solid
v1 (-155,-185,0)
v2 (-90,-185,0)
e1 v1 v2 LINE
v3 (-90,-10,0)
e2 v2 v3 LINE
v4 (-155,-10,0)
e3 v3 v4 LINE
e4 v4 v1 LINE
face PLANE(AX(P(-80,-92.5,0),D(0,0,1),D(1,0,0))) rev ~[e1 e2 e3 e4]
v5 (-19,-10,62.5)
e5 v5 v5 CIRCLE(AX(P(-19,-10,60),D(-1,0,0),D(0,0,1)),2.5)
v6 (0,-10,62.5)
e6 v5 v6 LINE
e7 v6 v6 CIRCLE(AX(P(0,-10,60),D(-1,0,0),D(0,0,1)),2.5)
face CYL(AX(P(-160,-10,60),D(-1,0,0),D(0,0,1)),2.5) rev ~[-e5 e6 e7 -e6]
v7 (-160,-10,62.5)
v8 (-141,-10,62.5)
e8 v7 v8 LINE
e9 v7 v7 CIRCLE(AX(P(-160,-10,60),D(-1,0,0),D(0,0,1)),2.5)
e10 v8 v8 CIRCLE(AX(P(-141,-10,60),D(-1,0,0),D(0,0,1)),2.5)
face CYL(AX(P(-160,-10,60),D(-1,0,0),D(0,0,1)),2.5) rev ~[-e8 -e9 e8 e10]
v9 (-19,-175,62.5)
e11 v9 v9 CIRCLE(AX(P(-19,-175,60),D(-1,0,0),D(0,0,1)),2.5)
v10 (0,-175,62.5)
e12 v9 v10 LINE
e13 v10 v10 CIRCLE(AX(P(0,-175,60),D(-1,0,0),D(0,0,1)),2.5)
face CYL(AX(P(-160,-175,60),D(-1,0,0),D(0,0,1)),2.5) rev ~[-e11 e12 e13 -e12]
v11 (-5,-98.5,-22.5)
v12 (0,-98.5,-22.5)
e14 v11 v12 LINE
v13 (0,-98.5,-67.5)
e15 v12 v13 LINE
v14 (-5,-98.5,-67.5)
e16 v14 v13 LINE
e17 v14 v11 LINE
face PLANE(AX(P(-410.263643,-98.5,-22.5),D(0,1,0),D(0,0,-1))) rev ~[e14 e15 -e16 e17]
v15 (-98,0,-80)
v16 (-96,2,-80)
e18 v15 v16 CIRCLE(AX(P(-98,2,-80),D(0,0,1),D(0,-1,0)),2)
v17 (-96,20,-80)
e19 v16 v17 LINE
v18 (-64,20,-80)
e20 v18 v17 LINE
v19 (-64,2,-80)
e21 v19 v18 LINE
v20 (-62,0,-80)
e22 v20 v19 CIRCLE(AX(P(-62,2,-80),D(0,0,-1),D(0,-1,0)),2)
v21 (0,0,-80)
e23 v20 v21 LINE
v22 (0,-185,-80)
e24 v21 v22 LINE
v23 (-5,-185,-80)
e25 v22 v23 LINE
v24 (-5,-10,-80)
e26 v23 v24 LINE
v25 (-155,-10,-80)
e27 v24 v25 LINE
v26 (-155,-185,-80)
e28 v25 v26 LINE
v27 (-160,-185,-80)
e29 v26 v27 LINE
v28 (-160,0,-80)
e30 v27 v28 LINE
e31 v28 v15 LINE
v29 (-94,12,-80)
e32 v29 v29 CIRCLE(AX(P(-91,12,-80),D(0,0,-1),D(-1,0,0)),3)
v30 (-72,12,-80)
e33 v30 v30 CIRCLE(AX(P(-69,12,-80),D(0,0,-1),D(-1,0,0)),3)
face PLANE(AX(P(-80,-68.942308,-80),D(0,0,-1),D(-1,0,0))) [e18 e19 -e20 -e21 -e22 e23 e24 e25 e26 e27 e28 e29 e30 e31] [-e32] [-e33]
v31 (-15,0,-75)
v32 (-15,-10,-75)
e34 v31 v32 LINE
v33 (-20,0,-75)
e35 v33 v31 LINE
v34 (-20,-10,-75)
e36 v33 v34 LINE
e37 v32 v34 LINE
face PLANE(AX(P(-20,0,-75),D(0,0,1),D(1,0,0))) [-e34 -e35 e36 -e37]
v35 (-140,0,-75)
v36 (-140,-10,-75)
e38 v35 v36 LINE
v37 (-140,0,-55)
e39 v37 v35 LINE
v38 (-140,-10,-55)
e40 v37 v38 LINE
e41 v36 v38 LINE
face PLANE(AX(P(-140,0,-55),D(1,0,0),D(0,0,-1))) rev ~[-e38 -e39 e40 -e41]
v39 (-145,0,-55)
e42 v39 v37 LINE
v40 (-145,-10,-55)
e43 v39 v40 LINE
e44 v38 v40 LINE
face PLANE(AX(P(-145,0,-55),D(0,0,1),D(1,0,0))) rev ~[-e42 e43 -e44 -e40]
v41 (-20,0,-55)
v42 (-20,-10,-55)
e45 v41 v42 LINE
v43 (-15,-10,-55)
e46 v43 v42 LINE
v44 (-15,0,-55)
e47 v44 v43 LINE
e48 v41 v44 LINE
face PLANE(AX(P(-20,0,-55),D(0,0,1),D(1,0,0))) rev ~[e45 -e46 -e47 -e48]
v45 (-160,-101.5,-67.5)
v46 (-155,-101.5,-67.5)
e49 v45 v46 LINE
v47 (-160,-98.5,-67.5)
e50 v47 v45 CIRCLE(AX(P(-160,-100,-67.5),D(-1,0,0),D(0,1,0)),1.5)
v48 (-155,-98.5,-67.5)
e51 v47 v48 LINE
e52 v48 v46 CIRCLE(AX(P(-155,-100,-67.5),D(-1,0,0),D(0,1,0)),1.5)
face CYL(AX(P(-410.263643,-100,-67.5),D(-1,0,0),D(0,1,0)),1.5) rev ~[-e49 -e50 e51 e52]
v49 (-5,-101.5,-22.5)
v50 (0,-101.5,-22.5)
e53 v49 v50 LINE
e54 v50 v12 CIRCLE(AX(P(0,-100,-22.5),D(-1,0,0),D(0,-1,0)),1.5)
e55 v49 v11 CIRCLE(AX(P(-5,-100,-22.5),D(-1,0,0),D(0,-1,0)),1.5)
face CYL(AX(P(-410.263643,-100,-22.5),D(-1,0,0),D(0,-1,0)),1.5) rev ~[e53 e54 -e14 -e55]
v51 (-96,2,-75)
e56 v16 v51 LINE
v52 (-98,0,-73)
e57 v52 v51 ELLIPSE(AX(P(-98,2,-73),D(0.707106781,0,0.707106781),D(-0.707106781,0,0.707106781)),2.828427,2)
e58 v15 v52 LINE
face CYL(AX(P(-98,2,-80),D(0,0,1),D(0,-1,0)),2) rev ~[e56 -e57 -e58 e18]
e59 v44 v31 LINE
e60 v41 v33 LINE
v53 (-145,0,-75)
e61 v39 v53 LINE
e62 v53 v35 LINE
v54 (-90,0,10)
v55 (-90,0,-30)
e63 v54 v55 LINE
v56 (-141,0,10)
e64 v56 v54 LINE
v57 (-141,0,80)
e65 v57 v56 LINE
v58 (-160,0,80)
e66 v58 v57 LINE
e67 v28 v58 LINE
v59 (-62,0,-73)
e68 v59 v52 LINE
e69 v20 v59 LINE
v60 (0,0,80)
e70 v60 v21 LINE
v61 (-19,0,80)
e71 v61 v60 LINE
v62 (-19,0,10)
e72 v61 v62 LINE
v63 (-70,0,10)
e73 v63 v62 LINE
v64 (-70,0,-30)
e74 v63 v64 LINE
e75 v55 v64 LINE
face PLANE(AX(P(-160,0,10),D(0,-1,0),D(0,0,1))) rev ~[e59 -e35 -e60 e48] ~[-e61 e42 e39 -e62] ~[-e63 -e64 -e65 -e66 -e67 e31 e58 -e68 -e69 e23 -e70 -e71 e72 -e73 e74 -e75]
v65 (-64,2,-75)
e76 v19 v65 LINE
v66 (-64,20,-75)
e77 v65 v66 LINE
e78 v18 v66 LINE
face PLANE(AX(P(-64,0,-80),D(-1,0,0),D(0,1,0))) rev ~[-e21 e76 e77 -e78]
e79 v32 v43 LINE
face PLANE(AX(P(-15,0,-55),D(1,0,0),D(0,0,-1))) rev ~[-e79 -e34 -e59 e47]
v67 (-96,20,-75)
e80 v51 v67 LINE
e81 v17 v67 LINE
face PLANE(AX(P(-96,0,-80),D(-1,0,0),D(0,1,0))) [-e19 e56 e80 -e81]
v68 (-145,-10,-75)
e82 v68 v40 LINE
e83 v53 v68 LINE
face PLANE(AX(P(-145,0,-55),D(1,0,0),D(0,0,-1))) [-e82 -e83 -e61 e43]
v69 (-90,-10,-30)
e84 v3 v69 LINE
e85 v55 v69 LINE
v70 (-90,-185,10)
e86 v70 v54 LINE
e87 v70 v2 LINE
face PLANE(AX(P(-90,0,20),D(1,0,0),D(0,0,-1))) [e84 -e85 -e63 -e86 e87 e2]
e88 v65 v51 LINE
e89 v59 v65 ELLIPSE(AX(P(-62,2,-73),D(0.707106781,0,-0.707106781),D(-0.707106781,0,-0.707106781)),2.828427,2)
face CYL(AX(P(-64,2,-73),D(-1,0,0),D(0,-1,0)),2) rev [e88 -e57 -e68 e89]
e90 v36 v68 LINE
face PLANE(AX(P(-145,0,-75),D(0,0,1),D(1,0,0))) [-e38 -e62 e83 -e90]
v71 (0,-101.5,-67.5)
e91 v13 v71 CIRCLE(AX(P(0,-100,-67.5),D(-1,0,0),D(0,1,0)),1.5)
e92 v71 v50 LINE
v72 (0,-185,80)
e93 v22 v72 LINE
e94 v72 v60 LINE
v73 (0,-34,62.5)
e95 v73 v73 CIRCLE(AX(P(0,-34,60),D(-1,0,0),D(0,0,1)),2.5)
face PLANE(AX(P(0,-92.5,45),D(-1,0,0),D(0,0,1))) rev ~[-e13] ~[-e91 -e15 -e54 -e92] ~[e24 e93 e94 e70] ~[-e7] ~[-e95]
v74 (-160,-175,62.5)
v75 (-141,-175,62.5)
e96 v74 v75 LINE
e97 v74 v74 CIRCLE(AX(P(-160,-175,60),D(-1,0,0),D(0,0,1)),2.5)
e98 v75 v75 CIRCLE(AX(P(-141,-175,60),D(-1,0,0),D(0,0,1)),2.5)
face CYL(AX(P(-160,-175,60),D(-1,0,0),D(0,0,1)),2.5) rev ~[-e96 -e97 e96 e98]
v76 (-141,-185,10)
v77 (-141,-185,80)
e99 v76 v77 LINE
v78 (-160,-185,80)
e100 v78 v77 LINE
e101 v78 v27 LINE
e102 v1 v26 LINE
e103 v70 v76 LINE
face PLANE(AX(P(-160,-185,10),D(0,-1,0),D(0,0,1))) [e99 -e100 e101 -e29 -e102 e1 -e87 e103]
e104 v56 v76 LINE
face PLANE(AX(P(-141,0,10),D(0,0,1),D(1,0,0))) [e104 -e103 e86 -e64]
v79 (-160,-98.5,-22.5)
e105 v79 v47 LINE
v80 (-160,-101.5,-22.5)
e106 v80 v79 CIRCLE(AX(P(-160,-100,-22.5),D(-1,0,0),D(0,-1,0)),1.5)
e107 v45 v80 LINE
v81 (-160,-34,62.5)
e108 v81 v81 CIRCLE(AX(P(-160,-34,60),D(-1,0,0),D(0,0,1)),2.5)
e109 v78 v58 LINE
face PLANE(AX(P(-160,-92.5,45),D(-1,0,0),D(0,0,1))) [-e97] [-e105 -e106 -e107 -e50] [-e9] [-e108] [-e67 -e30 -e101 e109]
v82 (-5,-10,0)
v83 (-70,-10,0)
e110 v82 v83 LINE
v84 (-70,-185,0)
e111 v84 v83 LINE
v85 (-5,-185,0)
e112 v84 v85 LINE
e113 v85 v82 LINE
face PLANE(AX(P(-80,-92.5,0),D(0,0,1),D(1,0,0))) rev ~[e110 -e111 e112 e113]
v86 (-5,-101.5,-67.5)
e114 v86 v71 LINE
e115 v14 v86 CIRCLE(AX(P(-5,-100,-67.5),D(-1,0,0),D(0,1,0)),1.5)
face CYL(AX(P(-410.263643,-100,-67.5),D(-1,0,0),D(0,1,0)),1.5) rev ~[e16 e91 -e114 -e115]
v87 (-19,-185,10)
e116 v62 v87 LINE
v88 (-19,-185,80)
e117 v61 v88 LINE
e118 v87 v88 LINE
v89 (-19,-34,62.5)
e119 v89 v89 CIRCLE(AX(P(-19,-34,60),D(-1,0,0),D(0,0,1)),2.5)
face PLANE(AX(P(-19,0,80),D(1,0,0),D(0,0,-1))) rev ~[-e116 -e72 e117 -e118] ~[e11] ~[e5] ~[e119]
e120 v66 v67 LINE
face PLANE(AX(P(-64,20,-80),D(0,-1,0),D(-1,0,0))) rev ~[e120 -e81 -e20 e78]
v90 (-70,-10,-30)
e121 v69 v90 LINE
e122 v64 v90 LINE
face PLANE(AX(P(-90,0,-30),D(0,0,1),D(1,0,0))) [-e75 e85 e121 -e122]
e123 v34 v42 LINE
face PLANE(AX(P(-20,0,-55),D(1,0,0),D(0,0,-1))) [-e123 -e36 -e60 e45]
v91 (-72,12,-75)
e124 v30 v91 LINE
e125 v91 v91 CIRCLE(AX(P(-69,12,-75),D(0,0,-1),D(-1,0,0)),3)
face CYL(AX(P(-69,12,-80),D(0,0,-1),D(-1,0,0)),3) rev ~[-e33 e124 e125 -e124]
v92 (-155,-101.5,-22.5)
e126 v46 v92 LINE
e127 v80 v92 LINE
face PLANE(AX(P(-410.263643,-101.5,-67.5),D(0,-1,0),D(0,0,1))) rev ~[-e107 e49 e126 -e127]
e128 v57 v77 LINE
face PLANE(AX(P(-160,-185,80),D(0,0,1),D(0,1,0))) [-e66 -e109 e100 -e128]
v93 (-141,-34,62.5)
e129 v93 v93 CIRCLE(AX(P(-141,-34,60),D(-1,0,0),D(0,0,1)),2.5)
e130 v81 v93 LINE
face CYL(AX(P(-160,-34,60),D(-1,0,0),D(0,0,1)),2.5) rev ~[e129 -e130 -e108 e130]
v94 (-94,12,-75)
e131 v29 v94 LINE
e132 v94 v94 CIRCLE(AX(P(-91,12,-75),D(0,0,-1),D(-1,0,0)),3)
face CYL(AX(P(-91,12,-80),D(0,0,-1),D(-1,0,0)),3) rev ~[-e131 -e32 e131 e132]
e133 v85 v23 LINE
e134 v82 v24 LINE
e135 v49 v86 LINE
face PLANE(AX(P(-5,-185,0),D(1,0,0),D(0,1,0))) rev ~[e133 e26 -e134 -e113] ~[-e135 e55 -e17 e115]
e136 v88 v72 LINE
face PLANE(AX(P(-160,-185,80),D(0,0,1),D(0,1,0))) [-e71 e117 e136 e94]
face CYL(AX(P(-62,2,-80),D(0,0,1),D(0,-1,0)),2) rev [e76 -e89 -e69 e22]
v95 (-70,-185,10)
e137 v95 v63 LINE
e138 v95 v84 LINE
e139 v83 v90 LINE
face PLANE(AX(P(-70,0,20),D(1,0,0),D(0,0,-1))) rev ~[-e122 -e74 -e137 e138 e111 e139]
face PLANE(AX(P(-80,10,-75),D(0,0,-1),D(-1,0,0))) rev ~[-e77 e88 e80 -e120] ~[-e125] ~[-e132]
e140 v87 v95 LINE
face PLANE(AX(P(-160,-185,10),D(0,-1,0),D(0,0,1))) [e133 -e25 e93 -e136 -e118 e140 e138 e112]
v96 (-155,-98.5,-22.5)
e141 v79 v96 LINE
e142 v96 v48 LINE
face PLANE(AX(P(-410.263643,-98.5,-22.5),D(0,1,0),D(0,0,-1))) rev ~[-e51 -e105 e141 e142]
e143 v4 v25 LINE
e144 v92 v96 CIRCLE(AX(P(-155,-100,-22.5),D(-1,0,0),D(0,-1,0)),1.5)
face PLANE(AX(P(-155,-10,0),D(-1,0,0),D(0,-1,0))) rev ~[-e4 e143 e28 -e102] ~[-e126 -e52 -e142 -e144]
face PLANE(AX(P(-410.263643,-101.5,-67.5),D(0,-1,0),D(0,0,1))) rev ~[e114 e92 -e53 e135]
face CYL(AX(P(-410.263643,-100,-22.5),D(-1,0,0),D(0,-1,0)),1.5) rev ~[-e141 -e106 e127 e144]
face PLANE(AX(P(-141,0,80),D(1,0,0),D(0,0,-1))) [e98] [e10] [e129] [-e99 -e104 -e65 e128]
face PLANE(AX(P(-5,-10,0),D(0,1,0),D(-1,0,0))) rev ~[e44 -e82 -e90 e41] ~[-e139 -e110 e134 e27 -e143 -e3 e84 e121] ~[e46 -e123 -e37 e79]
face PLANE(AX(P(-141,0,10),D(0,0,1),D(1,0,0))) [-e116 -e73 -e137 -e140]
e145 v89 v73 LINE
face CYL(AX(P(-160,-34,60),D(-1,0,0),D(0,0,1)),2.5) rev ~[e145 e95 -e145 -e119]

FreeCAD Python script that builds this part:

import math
import FreeCAD as App
import Part
import Sketcher
Q = App.Units.Quantity


def edges_at(feature, points):
    """Names of the edges that pass closest to the given points."""
    edges = feature.Shape.Edges
    near = lambda p: min(range(len(edges)), key=lambda i: edges[i].distToShape(Part.Vertex(*p))[0])
    return sorted({f"Edge{near(p) + 1}" for p in points})


def add_polygon(sketch, points):
    """Adds a closed chain of lines whose ends are joined by coincident constraints."""
    first, n = sketch.GeometryCount, len(points)
    for a, b in zip(points, points[1:] + points[:1]):
        sketch.addGeometry(Part.LineSegment(App.Vector(*a, 0), App.Vector(*b, 0)), False)
    for i in range(n):
        sketch.addConstraint(Sketcher.Constraint("Coincident", first + i, 2, first + (i + 1) % n, 1))

doc = App.newDocument("Part")
body = doc.addObject("PartDesign::Body", "Body")

# Sketch on XY plane
sketch1 = body.newObject("Sketcher::SketchObject", "Sketch")
sketch1.AttachmentSupport = (doc.getObject("XY_Plane"), [""])
sketch1.MapMode = "FlatFace"
add_polygon(sketch1, [(-160, 0), (-160, -185), (0, -185), (0, 0)])  # lines 0-3
sketch1.addConstraint([
    Sketcher.Constraint("Vertical", 0),
    Sketcher.Constraint("Horizontal", 1),
    Sketcher.Constraint("Vertical", 2),
    Sketcher.Constraint("Horizontal", 3),
    Sketcher.Constraint("Coincident", 2, 2, -1, 1),
    Sketcher.Constraint("DistanceX", 1, 1, 1, 2, Q("160 mm")),
    Sketcher.Constraint("DistanceY", 0, 2, 0, 1, Q("185 mm")),
])
pad1 = body.newObject("PartDesign::Pad", "Pad")
pad1.Profile = sketch1
pad1.Length = 10

# Sketch on XY plane
sketch2 = body.newObject("Sketcher::SketchObject", "Sketch001")
sketch2.AttachmentSupport = (doc.getObject("XY_Plane"), [""])
sketch2.MapMode = "FlatFace"
add_polygon(sketch2, [(0, 0), (0, -185), (-5, -185), (-5, -10), (-155, -10), (-155, -185), (-160, -185), (-160, 0)])  # lines 0-7
sketch2.addConstraint([
    Sketcher.Constraint("Vertical", 0),
    Sketcher.Constraint("Horizontal", 1),
    Sketcher.Constraint("Vertical", 2),
    Sketcher.Constraint("Horizontal", 3),
    Sketcher.Constraint("Vertical", 4),
    Sketcher.Constraint("Horizontal", 5),
    Sketcher.Constraint("Vertical", 6),
    Sketcher.Constraint("Horizontal", 7),
    Sketcher.Constraint("Coincident", 7, 2, -1, 1),
    Sketcher.Constraint("Horizontal", 1, 2, 4, 2),
    Sketcher.Constraint("Equal", 1, 5),
    Sketcher.Constraint("DistanceX", 1, 2, 1, 1, Q("5 mm")),
    Sketcher.Constraint("DistanceX", 3, 2, 3, 1, Q("150 mm")),
    Sketcher.Constraint("DistanceY", 0, 2, 0, 1, Q("185 mm")),
    Sketcher.Constraint("DistanceY", 2, 1, 2, 2, Q("175 mm")),
])
pad2 = body.newObject("PartDesign::Pad", "Pad001")
pad2.Profile = sketch2
pad2.Length = 80
pad2.Reversed = True

# Sketch on XZ plane
sketch3 = body.newObject("Sketcher::SketchObject", "Sketch002")
sketch3.AttachmentSupport = (doc.getObject("XZ_Plane"), [""])
sketch3.MapMode = "FlatFace"
add_polygon(sketch3, [(-90, -30), (-90, 20), (-70, 20), (-70, -30)])  # lines 0-3
sketch3.addConstraint([
    Sketcher.Constraint("Vertical", 0),
    Sketcher.Constraint("Horizontal", 1),
    Sketcher.Constraint("Vertical", 2),
    Sketcher.Constraint("Horizontal", 3),
    Sketcher.Constraint("DistanceX", 1, 1, 1, 2, Q("20 mm")),
    Sketcher.Constraint("DistanceY", 0, 1, 0, 2, Q("50 mm")),
    Sketcher.Constraint("DistanceX", 0, 2, -1, 1, Q("90 mm")),
    Sketcher.Constraint("DistanceY", -1, 1, 0, 2, Q("20 mm")),
])
pocket1 = body.newObject("PartDesign::Pocket", "Pocket")
pocket1.Profile = sketch3
pocket1.Type = "ThroughAll"
pocket1.Reversed = True

# Sketch on XY plane
sketch4 = body.newObject("Sketcher::SketchObject", "Sketch003")
sketch4.AttachmentSupport = (doc.getObject("XY_Plane"), [""])
sketch4.MapMode = "FlatFace"
sketch4.AttachmentOffset = App.Placement(App.Vector(0, 0, -80), App.Rotation())
add_polygon(sketch4, [(-64, 20), (-64, 0), (-96, 0), (-96, 20)])  # lines 0-3
sketch4.addConstraint([
    Sketcher.Constraint("Vertical", 0),
    Sketcher.Constraint("Horizontal", 1),
    Sketcher.Constraint("Vertical", 2),
    Sketcher.Constraint("Horizontal", 3),
    Sketcher.Constraint("PointOnObject", 0, 2, -1),
    Sketcher.Constraint("DistanceX", 1, 2, 1, 1, Q("32 mm")),
    Sketcher.Constraint("DistanceY", 0, 2, 0, 1, Q("20 mm")),
    Sketcher.Constraint("DistanceX", 0, 2, -1, 1, Q("64 mm")),
])
pad3 = body.newObject("PartDesign::Pad", "Pad002")
pad3.Profile = sketch4
pad3.Length = 5

# Sketch on XY plane
sketch5 = body.newObject("Sketcher::SketchObject", "Sketch004")
sketch5.AttachmentSupport = (doc.getObject("XY_Plane"), [""])
sketch5.MapMode = "FlatFace"
sketch5.AttachmentOffset = App.Placement(App.Vector(0, 0, -80), App.Rotation())
sketch5.addGeometry(Part.Circle(App.Vector(-69, 12, 0), App.Vector(0, 0, 1), 3), False)
sketch5.addConstraint([
    Sketcher.Constraint("Diameter", 0, Q("6 mm")),
    Sketcher.Constraint("DistanceX", 0, 3, -1, 1, Q("69 mm")),
    Sketcher.Constraint("DistanceY", -1, 1, 0, 3, Q("12 mm")),
])
pocket2 = body.newObject("PartDesign::Pocket", "Pocket001")
pocket2.Profile = sketch5
pocket2.Type = "UpToFirst"
pocket2.Reversed = True

# Sketch on XY plane
sketch6 = body.newObject("Sketcher::SketchObject", "Sketch005")
sketch6.AttachmentSupport = (doc.getObject("XY_Plane"), [""])
sketch6.MapMode = "FlatFace"
sketch6.AttachmentOffset = App.Placement(App.Vector(0, 0, -80), App.Rotation())
sketch6.addGeometry(Part.Circle(App.Vector(-91, 12, 0), App.Vector(0, 0, 1), 3), False)
sketch6.addConstraint([
    Sketcher.Constraint("Diameter", 0, Q("6 mm")),
    Sketcher.Constraint("DistanceX", 0, 3, -1, 1, Q("91 mm")),
    Sketcher.Constraint("DistanceY", -1, 1, 0, 3, Q("12 mm")),
])
pocket3 = body.newObject("PartDesign::Pocket", "Pocket002")
pocket3.Profile = sketch6
pocket3.Type = "UpToFirst"
pocket3.Reversed = True
doc.recompute()

fillet = body.newObject("PartDesign::Fillet", "Fillet")
fillet.Base = (pocket3, edges_at(pocket3, [(-80, 0, -75), (-96, 0, -77.5), (-64, 0, -77.5)]))
fillet.Radius = 2

# Sketch on YZ plane
sketch7 = body.newObject("Sketcher::SketchObject", "Sketch006")
sketch7.AttachmentSupport = (doc.getObject("YZ_Plane"), [""])
sketch7.MapMode = "FlatFace"
sketch7.AttachmentOffset = App.Placement(App.Vector(0, 0, -160), App.Rotation())
add_polygon(sketch7, [(0, 10), (-185, 10), (-185, 80), (0, 80)])  # lines 0-3
sketch7.addGeometry(Part.Circle(App.Vector(-175, 60, 0), App.Vector(0, 0, 1), 2.5), False)  # 4
sketch7.addGeometry(Part.Circle(App.Vector(-34, 60, 0), App.Vector(0, 0, 1), 2.5), False)  # 5
sketch7.addGeometry(Part.Circle(App.Vector(-10, 60, 0), App.Vector(0, 0, 1), 2.5), False)  # 6
sketch7.addConstraint([
    Sketcher.Constraint("Horizontal", 0),
    Sketcher.Constraint("Vertical", 1),
    Sketcher.Constraint("Horizontal", 2),
    Sketcher.Constraint("Vertical", 3),
    Sketcher.Constraint("Equal", 4, 5),
    Sketcher.Constraint("Equal", 5, 6),
    Sketcher.Constraint("PointOnObject", 2, 2, -2),
    Sketcher.Constraint("Horizontal", 4, 3, 5, 3),
    Sketcher.Constraint("Horizontal", 5, 3, 6, 3),
    Sketcher.Constraint("Diameter", 4, Q("5 mm")),
    Sketcher.Constraint("DistanceX", 0, 2, 0, 1, Q("185 mm")),
    Sketcher.Constraint("DistanceY", 1, 1, 1, 2, Q("70 mm")),
    Sketcher.Constraint("DistanceX", 4, 3, -1, 1, Q("175 mm")),
    Sketcher.Constraint("DistanceY", -1, 1, 4, 3, Q("60 mm")),
    Sketcher.Constraint("DistanceX", 5, 3, -1, 1, Q("34 mm")),
    Sketcher.Constraint("DistanceX", 6, 3, -1, 1, Q("10 mm")),
    Sketcher.Constraint("DistanceY", -1, 1, 0, 2, Q("10 mm")),
])
pad4 = body.newObject("PartDesign::Pad", "Pad003")
pad4.Profile = sketch7
pad4.Length = 160

# Sketch on YZ plane
sketch8 = body.newObject("Sketcher::SketchObject", "Sketch007")
sketch8.AttachmentSupport = (doc.getObject("YZ_Plane"), [""])
sketch8.MapMode = "FlatFace"
sketch8.AttachmentOffset = App.Placement(App.Vector(0, 0, -155), App.Rotation())
sketch8.addGeometry([
    Part.LineSegment(App.Vector(-98.5, -67.5, 0), App.Vector(-98.5, -22.5, 0)),
    Part.ArcOfCircle(Part.Circle(App.Vector(-100, -22.5, 0), App.Vector(0, 0, 1), 1.5), math.radians(0), math.radians(180)),
    Part.LineSegment(App.Vector(-101.5, -22.5, 0), App.Vector(-101.5, -67.5, 0)),
    Part.ArcOfCircle(Part.Circle(App.Vector(-100, -67.5, 0), App.Vector(0, 0, 1), 1.5), math.radians(180), math.radians(360)),
], False)
sketch8.addConstraint([
    Sketcher.Constraint("Tangent", 0, 2, 1, 1),
    Sketcher.Constraint("Tangent", 1, 2, 2, 1),
    Sketcher.Constraint("Tangent", 2, 2, 3, 1),
    Sketcher.Constraint("Tangent", 3, 2, 0, 1),
    Sketcher.Constraint("Vertical", 0),
    Sketcher.Constraint("Vertical", 2),
    Sketcher.Constraint("Radius", 1, Q("1.5 mm")),
    Sketcher.Constraint("DistanceY", 0, 1, 0, 2, Q("45 mm")),
    Sketcher.Constraint("DistanceX", 1, 3, -1, 1, Q("100 mm")),
    Sketcher.Constraint("DistanceY", 1, 3, -1, 1, Q("22.5 mm")),
])
pocket4 = body.newObject("PartDesign::Pocket", "Pocket003")
pocket4.Profile = sketch8
pocket4.Type = "ThroughAll"
pocket4.Midplane = True

# Sketch on XZ plane
sketch9 = body.newObject("Sketcher::SketchObject", "Sketch008")
sketch9.AttachmentSupport = (doc.getObject("XZ_Plane"), [""])
sketch9.MapMode = "FlatFace"
add_polygon(sketch9, [(-141, 10), (-141, 80), (-19, 80), (-19, 10)])  # lines 0-3
sketch9.addConstraint([
    Sketcher.Constraint("Vertical", 0),
    Sketcher.Constraint("Horizontal", 1),
    Sketcher.Constraint("Vertical", 2),
    Sketcher.Constraint("Horizontal", 3),
    Sketcher.Constraint("DistanceX", 1, 1, 1, 2, Q("122 mm")),
    Sketcher.Constraint("DistanceY", 0, 1, 0, 2, Q("70 mm")),
    Sketcher.Constraint("DistanceX", 0, 2, -1, 1, Q("141 mm")),
    Sketcher.Constraint("DistanceY", -1, 1, 0, 2, Q("80 mm")),
])
pocket5 = body.newObject("PartDesign::Pocket", "Pocket004")
pocket5.Profile = sketch9
pocket5.Type = "ThroughAll"
pocket5.Reversed = True

# Sketch on XZ plane
sketch10 = body.newObject("Sketcher::SketchObject", "Sketch009")
sketch10.AttachmentSupport = (doc.getObject("XZ_Plane"), [""])
sketch10.MapMode = "FlatFace"
add_polygon(sketch10, [(-145, -75), (-145, -55), (-140, -55), (-140, -75)])  # lines 0-3
sketch10.addConstraint([
    Sketcher.Constraint("Vertical", 0),
    Sketcher.Constraint("Horizontal", 1),
    Sketcher.Constraint("Vertical", 2),
    Sketcher.Constraint("Horizontal", 3),
    Sketcher.Constraint("DistanceX", 1, 1, 1, 2, Q("5 mm")),
    Sketcher.Constraint("DistanceY", 0, 1, 0, 2, Q("20 mm")),
    Sketcher.Constraint("DistanceX", 0, 2, -1, 1, Q("145 mm")),
    Sketcher.Constraint("DistanceY", 0, 2, -1, 1, Q("55 mm")),
])
pocket6 = body.newObject("PartDesign::Pocket", "Pocket005")
pocket6.Profile = sketch10
pocket6.Type = "UpToFirst"
pocket6.Reversed = True

# Sketch on XZ plane
sketch11 = body.newObject("Sketcher::SketchObject", "Sketch010")
sketch11.AttachmentSupport = (doc.getObject("XZ_Plane"), [""])
sketch11.MapMode = "FlatFace"
add_polygon(sketch11, [(-20, -75), (-20, -55), (-15, -55), (-15, -75)])  # lines 0-3
sketch11.addConstraint([
    Sketcher.Constraint("Vertical", 0),
    Sketcher.Constraint("Horizontal", 1),
    Sketcher.Constraint("Vertical", 2),
    Sketcher.Constraint("Horizontal", 3),
    Sketcher.Constraint("DistanceX", 1, 1, 1, 2, Q("5 mm")),
    Sketcher.Constraint("DistanceY", 0, 1, 0, 2, Q("20 mm")),
    Sketcher.Constraint("DistanceX", 0, 2, -1, 1, Q("20 mm")),
    Sketcher.Constraint("DistanceY", 0, 2, -1, 1, Q("55 mm")),
])
pocket7 = body.newObject("PartDesign::Pocket", "Pocket006")
pocket7.Profile = sketch11
pocket7.Type = "UpToFirst"
pocket7.Reversed = True

doc.recompute()
